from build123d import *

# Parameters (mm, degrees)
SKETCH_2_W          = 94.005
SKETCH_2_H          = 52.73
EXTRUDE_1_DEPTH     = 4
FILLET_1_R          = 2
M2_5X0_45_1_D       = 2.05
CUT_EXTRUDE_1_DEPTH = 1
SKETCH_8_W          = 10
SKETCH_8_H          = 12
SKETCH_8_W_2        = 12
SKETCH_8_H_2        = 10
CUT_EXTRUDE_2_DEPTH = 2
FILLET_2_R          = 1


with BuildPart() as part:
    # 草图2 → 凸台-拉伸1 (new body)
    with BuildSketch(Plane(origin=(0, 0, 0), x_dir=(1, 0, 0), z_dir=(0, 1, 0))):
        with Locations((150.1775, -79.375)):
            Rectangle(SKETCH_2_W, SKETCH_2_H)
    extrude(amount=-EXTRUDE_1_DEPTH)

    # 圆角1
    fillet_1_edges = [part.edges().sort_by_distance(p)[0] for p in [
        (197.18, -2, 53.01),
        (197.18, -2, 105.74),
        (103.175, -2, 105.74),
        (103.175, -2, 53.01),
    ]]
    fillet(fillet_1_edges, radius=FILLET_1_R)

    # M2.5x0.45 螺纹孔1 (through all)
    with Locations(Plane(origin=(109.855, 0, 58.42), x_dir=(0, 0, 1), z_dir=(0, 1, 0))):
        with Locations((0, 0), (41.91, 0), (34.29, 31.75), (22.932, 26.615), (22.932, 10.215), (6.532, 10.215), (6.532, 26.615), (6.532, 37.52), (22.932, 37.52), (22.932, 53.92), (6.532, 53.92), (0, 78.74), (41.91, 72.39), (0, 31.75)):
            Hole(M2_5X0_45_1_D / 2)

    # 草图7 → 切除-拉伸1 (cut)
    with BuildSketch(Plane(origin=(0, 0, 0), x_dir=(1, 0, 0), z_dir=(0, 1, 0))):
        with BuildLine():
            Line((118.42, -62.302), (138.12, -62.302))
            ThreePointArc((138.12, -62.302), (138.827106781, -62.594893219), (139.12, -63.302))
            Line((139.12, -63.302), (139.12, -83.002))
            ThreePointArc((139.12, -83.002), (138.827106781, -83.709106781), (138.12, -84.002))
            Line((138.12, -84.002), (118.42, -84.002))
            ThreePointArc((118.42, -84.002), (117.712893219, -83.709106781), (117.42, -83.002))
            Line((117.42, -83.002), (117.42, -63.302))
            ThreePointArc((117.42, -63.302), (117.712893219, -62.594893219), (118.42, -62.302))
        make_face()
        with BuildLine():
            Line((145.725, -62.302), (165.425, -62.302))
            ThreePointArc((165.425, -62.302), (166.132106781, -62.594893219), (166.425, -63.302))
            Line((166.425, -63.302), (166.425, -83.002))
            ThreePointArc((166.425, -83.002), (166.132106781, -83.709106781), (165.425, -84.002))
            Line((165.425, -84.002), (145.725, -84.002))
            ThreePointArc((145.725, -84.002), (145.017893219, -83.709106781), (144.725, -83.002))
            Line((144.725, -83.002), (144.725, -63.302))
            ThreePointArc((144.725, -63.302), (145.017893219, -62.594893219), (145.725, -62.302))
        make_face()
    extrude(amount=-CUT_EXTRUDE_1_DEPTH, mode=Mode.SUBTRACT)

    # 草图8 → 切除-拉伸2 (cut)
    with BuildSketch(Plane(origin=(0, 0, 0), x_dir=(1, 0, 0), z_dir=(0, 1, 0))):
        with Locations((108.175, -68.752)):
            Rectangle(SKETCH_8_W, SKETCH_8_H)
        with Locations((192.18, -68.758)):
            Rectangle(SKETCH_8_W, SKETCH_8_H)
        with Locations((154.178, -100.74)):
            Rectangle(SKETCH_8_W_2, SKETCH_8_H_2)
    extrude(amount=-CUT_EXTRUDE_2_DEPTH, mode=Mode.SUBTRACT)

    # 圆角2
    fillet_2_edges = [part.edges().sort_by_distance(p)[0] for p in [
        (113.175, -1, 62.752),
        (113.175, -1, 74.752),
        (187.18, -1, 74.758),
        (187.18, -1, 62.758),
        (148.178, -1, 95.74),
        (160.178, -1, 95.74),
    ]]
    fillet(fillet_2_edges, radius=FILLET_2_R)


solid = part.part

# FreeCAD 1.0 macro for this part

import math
import FreeCAD as App
import Part
import Sketcher
Q = App.Units.Quantity


def edges_at(feature, points):
    """Names of the edges that pass closest to the given points."""
    edges = feature.Shape.Edges
    near = lambda p: min(range(len(edges)), key=lambda i: edges[i].distToShape(Part.Vertex(*p))[0])
    return sorted({f"Edge{near(p) + 1}" for p in points})

doc = App.newDocument("Part")
params = doc.addObject("Spreadsheet::Sheet", "Params")
for row, (alias, value) in enumerate([
    ("sketch1_height", "52.73 mm"),
    ("pad1_length", "4 mm"),
    ("fillet_radius", "2 mm"),
    ("sketch2_diameter", "2.05 mm"),
    ("hole_diameter", "2.05 mm"),
    ("sketch3_radius", "1 mm"),
    ("sketch3_width", "19.7 mm"),
    ("pocket1_length", "1 mm"),
    ("sketch4_width", "10 mm"),
    ("sketch4_width2", "12 mm"),
    ("pocket2_length", "2 mm"),
    ("fillet2_radius", "1 mm"),
], start=1):
    params.set(f"A{row}", alias)
    params.set(f"B{row}", "=" + value)
    params.setAlias(f"B{row}", alias)

body = doc.addObject("PartDesign::Body", "Body")

# Sketch on XZ plane
sketch1 = body.newObject("Sketcher::SketchObject", "Sketch")
sketch1.AttachmentSupport = (doc.getObject("XZ_Plane"), [""])
sketch1.MapMode = "FlatFace"
sketch1.addGeometry([
    Part.LineSegment(App.Vector(103, 53, 0), App.Vector(103, 106, 0)),
    Part.LineSegment(App.Vector(103, 106, 0), App.Vector(197, 106, 0)),
    Part.LineSegment(App.Vector(197, 106, 0), App.Vector(197, 53, 0)),
    Part.LineSegment(App.Vector(197, 53, 0), App.Vector(103, 53, 0)),
], False)
sketch1.addConstraint([
    Sketcher.Constraint("Coincident", 0, 2, 1, 1),
    Sketcher.Constraint("Coincident", 1, 2, 2, 1),
    Sketcher.Constraint("Coincident", 2, 2, 3, 1),
    Sketcher.Constraint("Coincident", 3, 2, 0, 1),
    Sketcher.Constraint("Vertical", 0),
    Sketcher.Constraint("Horizontal", 1),
    Sketcher.Constraint("Vertical", 2),
    Sketcher.Constraint("Horizontal", 3),
    Sketcher.Constraint("DistanceY", 0, 1, 0, 2, Q("52.73 mm")),
    Sketcher.Constraint("DistanceX", 1, 1, 1, 2, Q("94.005 mm")),
    Sketcher.Constraint("DistanceY", -1, 1, 0, 2, Q("105.74 mm")),
    Sketcher.Constraint("DistanceX", -1, 1, 1, 2, Q("197.18 mm")),
])
sketch1.setExpression("Constraints[8]", "Params.sketch1_height")
pad1 = body.newObject("PartDesign::Pad", "Pad")
pad1.Profile = sketch1
pad1.setExpression("Length", "Params.pad1_length")
doc.recompute()

fillet = body.newObject("PartDesign::Fillet", "Fillet")
fillet.Base = (pad1, edges_at(pad1, [
    (197.18, -2, 53.01),
    (197.18, -2, 105.74),
    (103.175, -2, 105.74),
    (103.175, -2, 53.01),
]))
fillet.setExpression("Radius", "Params.fillet_radius")

# Sketch on XZ plane
sketch2 = body.newObject("Sketcher::SketchObject", "Sketch001")
sketch2.AttachmentSupport = (doc.getObject("XZ_Plane"), [""])
sketch2.MapMode = "FlatFace"
sketch2.addGeometry([
    Part.Circle(App.Vector(109.9, 58.4, 0), App.Vector(0, 0, 1), 1),  # 0
    Part.Circle(App.Vector(109.9, 100.3, 0), App.Vector(0, 0, 1), 1),  # 1
    Part.Circle(App.Vector(141.6, 92.7, 0), App.Vector(0, 0, 1), 1),  # 2
    Part.Circle(App.Vector(136.5, 81.4, 0), App.Vector(0, 0, 1), 1),  # 3
    Part.Circle(App.Vector(120.1, 81.4, 0), App.Vector(0, 0, 1), 1),  # 4
    Part.Circle(App.Vector(120.1, 65, 0), App.Vector(0, 0, 1), 1),  # 5
    Part.Circle(App.Vector(136.5, 65, 0), App.Vector(0, 0, 1), 1),  # 6
    Part.Circle(App.Vector(147.4, 65, 0), App.Vector(0, 0, 1), 1),  # 7
    Part.Circle(App.Vector(147.4, 81.4, 0), App.Vector(0, 0, 1), 1),  # 8
    Part.Circle(App.Vector(163.8, 81.4, 0), App.Vector(0, 0, 1), 1),  # 9
    Part.Circle(App.Vector(163.8, 65, 0), App.Vector(0, 0, 1), 1),  # 10
    Part.Circle(App.Vector(188.6, 58.4, 0), App.Vector(0, 0, 1), 1),  # 11
    Part.Circle(App.Vector(182.2, 100.3, 0), App.Vector(0, 0, 1), 1),  # 12
    Part.Circle(App.Vector(141.6, 58.4, 0), App.Vector(0, 0, 1), 1),  # 13
], False)
sketch2.addConstraint([
    Sketcher.Constraint("Equal", 0, 1),
    Sketcher.Constraint("Equal", 1, 2),
    Sketcher.Constraint("Equal", 2, 3),
    Sketcher.Constraint("Equal", 3, 4),
    Sketcher.Constraint("Equal", 4, 5),
    Sketcher.Constraint("Equal", 5, 6),
    Sketcher.Constraint("Equal", 6, 7),
    Sketcher.Constraint("Equal", 7, 8),
    Sketcher.Constraint("Equal", 8, 9),
    Sketcher.Constraint("Equal", 9, 10),
    Sketcher.Constraint("Equal", 10, 11),
    Sketcher.Constraint("Equal", 11, 12),
    Sketcher.Constraint("Equal", 12, 13),
    Sketcher.Constraint("Horizontal", 3, 3, 4, 3),
    Sketcher.Constraint("Horizontal", 5, 3, 6, 3),
    Sketcher.Constraint("Horizontal", 6, 3, 7, 3),
    Sketcher.Constraint("Horizontal", 4, 3, 8, 3),
    Sketcher.Constraint("Horizontal", 8, 3, 9, 3),
    Sketcher.Constraint("Horizontal", 7, 3, 10, 3),
    Sketcher.Constraint("Horizontal", 0, 3, 11, 3),
    Sketcher.Constraint("Horizontal", 1, 3, 12, 3),
    Sketcher.Constraint("Horizontal", 11, 3, 13, 3),
    Sketcher.Constraint("Vertical", 0, 3, 1, 3),
    Sketcher.Constraint("Vertical", 4, 3, 5, 3),
    Sketcher.Constraint("Vertical", 3, 3, 6, 3),
    Sketcher.Constraint("Vertical", 7, 3, 8, 3),
    Sketcher.Constraint("Vertical", 9, 3, 10, 3),
    Sketcher.Constraint("Vertical", 2, 3, 13, 3),
    Sketcher.Constraint("Diameter", 0, Q("2.05 mm")),
    Sketcher.Constraint("DistanceX", 4, 3, 3, 3, Q("16.4 mm")),
    Sketcher.Constraint("DistanceY", 5, 3, 4, 3, Q("16.4 mm")),
    Sketcher.Constraint("DistanceX", 8, 3, 9, 3, Q("16.4 mm")),
    Sketcher.Constraint("DistanceY", -1, 1, 0, 3, Q("58.42 mm")),
    Sketcher.Constraint("DistanceY", -1, 1, 1, 3, Q("100.33 mm")),
    Sketcher.Constraint("DistanceY", -1, 1, 2, 3, Q("92.71 mm")),
    Sketcher.Constraint("DistanceX", -1, 1, 3, 3, Q("136.47 mm")),
    Sketcher.Constraint("DistanceX", 1, 3, 2, 3, Q("31.75 mm")),
    Sketcher.Constraint("DistanceX", 2, 3, 7, 3, Q("5.77 mm")),
    Sketcher.Constraint("DistanceX", 10, 3, 11, 3, Q("24.82 mm")),
    Sketcher.Constraint("DistanceX", 9, 3, 12, 3, Q("18.47 mm")),
    Sketcher.Constraint("DistanceX", -1, 1, 0, 3, Q("109.855 mm")),
    Sketcher.Constraint("DistanceY", -1, 1, 3, 3, Q("81.352 mm")),
])
sketch2.setExpression("Constraints[28]", "Params.sketch2_diameter")
doc.recompute()
hole = body.newObject("PartDesign::Hole", "Hole")
hole.Profile = sketch2
hole.ThreadType = "None"
hole.setExpression("Diameter", "Params.hole_diameter")
hole.DepthType = "ThroughAll"
hole.Reversed = True

# Sketch on XZ plane
sketch3 = body.newObject("Sketcher::SketchObject", "Sketch002")
sketch3.AttachmentSupport = (doc.getObject("XZ_Plane"), [""])
sketch3.MapMode = "FlatFace"
sketch3.addGeometry([
    Part.LineSegment(App.Vector(138.1, 62.3, 0), App.Vector(118.4, 62.3, 0)),  # 0
    Part.ArcOfCircle(Part.Circle(App.Vector(118.4, 63.3, 0), App.Vector(0, 0, 1), 1), math.radians(-180), math.radians(-90)),  # 1
    Part.LineSegment(App.Vector(117.4, 63.3, 0), App.Vector(117.4, 83, 0)),  # 2
    Part.ArcOfCircle(Part.Circle(App.Vector(118.4, 83, 0), App.Vector(0, 0, 1), 1), math.radians(90), math.radians(180)),  # 3
    Part.LineSegment(App.Vector(118.4, 84, 0), App.Vector(138.1, 84, 0)),  # 4
    Part.ArcOfCircle(Part.Circle(App.Vector(138.1, 83, 0), App.Vector(0, 0, 1), 1), math.radians(0), math.radians(90)),  # 5
    Part.LineSegment(App.Vector(139.1, 83, 0), App.Vector(139.1, 63.3, 0)),  # 6
    Part.ArcOfCircle(Part.Circle(App.Vector(138.1, 63.3, 0), App.Vector(0, 0, 1), 1), math.radians(-90), math.radians(0)),  # 7
    Part.LineSegment(App.Vector(165.4, 62.3, 0), App.Vector(145.7, 62.3, 0)),  # 8
    Part.ArcOfCircle(Part.Circle(App.Vector(145.7, 63.3, 0), App.Vector(0, 0, 1), 1), math.radians(-180), math.radians(-90)),  # 9
    Part.LineSegment(App.Vector(144.7, 63.3, 0), App.Vector(144.7, 83, 0)),  # 10
    Part.ArcOfCircle(Part.Circle(App.Vector(145.7, 83, 0), App.Vector(0, 0, 1), 1), math.radians(90), math.radians(180)),  # 11
    Part.LineSegment(App.Vector(145.7, 84, 0), App.Vector(165.4, 84, 0)),  # 12
    Part.ArcOfCircle(Part.Circle(App.Vector(165.4, 83, 0), App.Vector(0, 0, 1), 1), math.radians(0), math.radians(90)),  # 13
    Part.LineSegment(App.Vector(166.4, 83, 0), App.Vector(166.4, 63.3, 0)),  # 14
    Part.ArcOfCircle(Part.Circle(App.Vector(165.4, 63.3, 0), App.Vector(0, 0, 1), 1), math.radians(-90), math.radians(0)),  # 15
], False)
sketch3.addConstraint([
    Sketcher.Constraint("Tangent", 0, 2, 1, 2),
    Sketcher.Constraint("Tangent", 1, 1, 2, 1),
    Sketcher.Constraint("Tangent", 2, 2, 3, 2),
    Sketcher.Constraint("Tangent", 3, 1, 4, 1),
    Sketcher.Constraint("Tangent", 4, 2, 5, 2),
    Sketcher.Constraint("Tangent", 5, 1, 6, 1),
    Sketcher.Constraint("Tangent", 6, 2, 7, 2),
    Sketcher.Constraint("Tangent", 7, 1, 0, 1),
    Sketcher.Constraint("Tangent", 8, 2, 9, 2),
    Sketcher.Constraint("Tangent", 9, 1, 10, 1),
    Sketcher.Constraint("Tangent", 10, 2, 11, 2),
    Sketcher.Constraint("Tangent", 11, 1, 12, 1),
    Sketcher.Constraint("Tangent", 12, 2, 13, 2),
    Sketcher.Constraint("Tangent", 13, 1, 14, 1),
    Sketcher.Constraint("Tangent", 14, 2, 15, 2),
    Sketcher.Constraint("Tangent", 15, 1, 8, 1),
    Sketcher.Constraint("Horizontal", 0),
    Sketcher.Constraint("Vertical", 2),
    Sketcher.Constraint("Horizontal", 4),
    Sketcher.Constraint("Vertical", 6),
    Sketcher.Constraint("Horizontal", 8),
    Sketcher.Constraint("Vertical", 10),
    Sketcher.Constraint("Horizontal", 12),
    Sketcher.Constraint("Vertical", 14),
    Sketcher.Constraint("Equal", 1, 3),
    Sketcher.Constraint("Equal", 3, 5),
    Sketcher.Constraint("Equal", 5, 7),
    Sketcher.Constraint("Equal", 7, 9),
    Sketcher.Constraint("Equal", 9, 11),
    Sketcher.Constraint("Equal", 11, 13),
    Sketcher.Constraint("Equal", 13, 15),
    Sketcher.Constraint("Horizontal", 7, 3, 9, 3),
    Sketcher.Constraint("Horizontal", 5, 3, 11, 3),
    Sketcher.Constraint("Equal", 4, 8),
    Sketcher.Constraint("Equal", 12, 2),
    Sketcher.Constraint("Radius", 1, Q("1 mm")),
    Sketcher.Constraint("DistanceX", 0, 2, 0, 1, Q("19.7 mm")),
    Sketcher.Constraint("DistanceX", -1, 1, 1, 3, Q("118.42 mm")),
    Sketcher.Constraint("DistanceY", -1, 1, 1, 3, Q("63.302 mm")),
    Sketcher.Constraint("DistanceX", -1, 1, 9, 3, Q("145.725 mm")),
])
sketch3.setExpression("Constraints[35]", "Params.sketch3_radius")
sketch3.setExpression("Constraints[36]", "Params.sketch3_width")
pocket1 = body.newObject("PartDesign::Pocket", "Pocket")
pocket1.Profile = sketch3
pocket1.setExpression("Length", "Params.pocket1_length")
pocket1.Reversed = True

# Sketch on XZ plane
sketch4 = body.newObject("Sketcher::SketchObject", "Sketch003")
sketch4.AttachmentSupport = (doc.getObject("XZ_Plane"), [""])
sketch4.MapMode = "FlatFace"
sketch4.addGeometry([
    Part.LineSegment(App.Vector(103, 63, 0), App.Vector(103, 75, 0)),  # 0
    Part.LineSegment(App.Vector(103, 75, 0), App.Vector(113, 75, 0)),  # 1
    Part.LineSegment(App.Vector(113, 75, 0), App.Vector(113, 63, 0)),  # 2
    Part.LineSegment(App.Vector(113, 63, 0), App.Vector(103, 63, 0)),  # 3
    Part.LineSegment(App.Vector(187, 63, 0), App.Vector(187, 75, 0)),  # 4
    Part.LineSegment(App.Vector(187, 75, 0), App.Vector(197, 75, 0)),  # 5
    Part.LineSegment(App.Vector(197, 75, 0), App.Vector(197, 63, 0)),  # 6
    Part.LineSegment(App.Vector(197, 63, 0), App.Vector(187, 63, 0)),  # 7
    Part.LineSegment(App.Vector(148, 96, 0), App.Vector(148, 106, 0)),  # 8
    Part.LineSegment(App.Vector(148, 106, 0), App.Vector(160, 106, 0)),  # 9
    Part.LineSegment(App.Vector(160, 106, 0), App.Vector(160, 96, 0)),  # 10
    Part.LineSegment(App.Vector(160, 96, 0), App.Vector(148, 96, 0)),  # 11
], False)
sketch4.addConstraint([
    Sketcher.Constraint("Coincident", 0, 2, 1, 1),
    Sketcher.Constraint("Coincident", 1, 2, 2, 1),
    Sketcher.Constraint("Coincident", 2, 2, 3, 1),
    Sketcher.Constraint("Coincident", 3, 2, 0, 1),
    Sketcher.Constraint("Coincident", 4, 2, 5, 1),
    Sketcher.Constraint("Coincident", 5, 2, 6, 1),
    Sketcher.Constraint("Coincident", 6, 2, 7, 1),
    Sketcher.Constraint("Coincident", 7, 2, 4, 1),
    Sketcher.Constraint("Coincident", 8, 2, 9, 1),
    Sketcher.Constraint("Coincident", 9, 2, 10, 1),
    Sketcher.Constraint("Coincident", 10, 2, 11, 1),
    Sketcher.Constraint("Coincident", 11, 2, 8, 1),
    Sketcher.Constraint("Vertical", 0),
    Sketcher.Constraint("Horizontal", 1),
    Sketcher.Constraint("Vertical", 2),
    Sketcher.Constraint("Horizontal", 3),
    Sketcher.Constraint("Vertical", 4),
    Sketcher.Constraint("Horizontal", 5),
    Sketcher.Constraint("Vertical", 6),
    Sketcher.Constraint("Horizontal", 7),
    Sketcher.Constraint("Vertical", 8),
    Sketcher.Constraint("Horizontal", 9),
    Sketcher.Constraint("Vertical", 10),
    Sketcher.Constraint("Horizontal", 11),
    Sketcher.Constraint("Equal", 3, 5),
    Sketcher.Constraint("Equal", 11, 0),
    Sketcher.Constraint("Equal", 2, 4),
    Sketcher.Constraint("Equal", 7, 8),
    Sketcher.Constraint("DistanceX", 1, 1, 1, 2, Q("10 mm")),
    Sketcher.Constraint("DistanceX", 9, 1, 9, 2, Q("12 mm")),
    Sketcher.Constraint("DistanceX", -1, 1, 4, 2, Q("187.18 mm")),
    Sketcher.Constraint("DistanceY", -1, 1, 8, 2, Q("105.74 mm")),
    Sketcher.Constraint("DistanceX", -1, 1, 0, 2, Q("103.175 mm")),
    Sketcher.Constraint("DistanceY", -1, 1, 0, 2, Q("74.752 mm")),
    Sketcher.Constraint("DistanceY", -1, 1, 4, 2, Q("74.758 mm")),
    Sketcher.Constraint("DistanceX", -1, 1, 8, 2, Q("148.178 mm")),
])
sketch4.setExpression("Constraints[28]", "Params.sketch4_width")
sketch4.setExpression("Constraints[29]", "Params.sketch4_width2")
pocket2 = body.newObject("PartDesign::Pocket", "Pocket001")
pocket2.Profile = sketch4
pocket2.setExpression("Length", "Params.pocket2_length")
pocket2.Reversed = True
doc.recompute()

fillet2 = body.newObject("PartDesign::Fillet", "Fillet001")
fillet2.Base = (pocket2, edges_at(pocket2, [
    (113.175, -1, 62.752),
    (113.175, -1, 74.752),
    (187.18, -1, 74.758),
    (187.18, -1, 62.758),
    (148.178, -1, 95.74),
    (160.178, -1, 95.74),
]))
fillet2.setExpression("Radius", "Params.fillet2_radius")

doc.recompute()
